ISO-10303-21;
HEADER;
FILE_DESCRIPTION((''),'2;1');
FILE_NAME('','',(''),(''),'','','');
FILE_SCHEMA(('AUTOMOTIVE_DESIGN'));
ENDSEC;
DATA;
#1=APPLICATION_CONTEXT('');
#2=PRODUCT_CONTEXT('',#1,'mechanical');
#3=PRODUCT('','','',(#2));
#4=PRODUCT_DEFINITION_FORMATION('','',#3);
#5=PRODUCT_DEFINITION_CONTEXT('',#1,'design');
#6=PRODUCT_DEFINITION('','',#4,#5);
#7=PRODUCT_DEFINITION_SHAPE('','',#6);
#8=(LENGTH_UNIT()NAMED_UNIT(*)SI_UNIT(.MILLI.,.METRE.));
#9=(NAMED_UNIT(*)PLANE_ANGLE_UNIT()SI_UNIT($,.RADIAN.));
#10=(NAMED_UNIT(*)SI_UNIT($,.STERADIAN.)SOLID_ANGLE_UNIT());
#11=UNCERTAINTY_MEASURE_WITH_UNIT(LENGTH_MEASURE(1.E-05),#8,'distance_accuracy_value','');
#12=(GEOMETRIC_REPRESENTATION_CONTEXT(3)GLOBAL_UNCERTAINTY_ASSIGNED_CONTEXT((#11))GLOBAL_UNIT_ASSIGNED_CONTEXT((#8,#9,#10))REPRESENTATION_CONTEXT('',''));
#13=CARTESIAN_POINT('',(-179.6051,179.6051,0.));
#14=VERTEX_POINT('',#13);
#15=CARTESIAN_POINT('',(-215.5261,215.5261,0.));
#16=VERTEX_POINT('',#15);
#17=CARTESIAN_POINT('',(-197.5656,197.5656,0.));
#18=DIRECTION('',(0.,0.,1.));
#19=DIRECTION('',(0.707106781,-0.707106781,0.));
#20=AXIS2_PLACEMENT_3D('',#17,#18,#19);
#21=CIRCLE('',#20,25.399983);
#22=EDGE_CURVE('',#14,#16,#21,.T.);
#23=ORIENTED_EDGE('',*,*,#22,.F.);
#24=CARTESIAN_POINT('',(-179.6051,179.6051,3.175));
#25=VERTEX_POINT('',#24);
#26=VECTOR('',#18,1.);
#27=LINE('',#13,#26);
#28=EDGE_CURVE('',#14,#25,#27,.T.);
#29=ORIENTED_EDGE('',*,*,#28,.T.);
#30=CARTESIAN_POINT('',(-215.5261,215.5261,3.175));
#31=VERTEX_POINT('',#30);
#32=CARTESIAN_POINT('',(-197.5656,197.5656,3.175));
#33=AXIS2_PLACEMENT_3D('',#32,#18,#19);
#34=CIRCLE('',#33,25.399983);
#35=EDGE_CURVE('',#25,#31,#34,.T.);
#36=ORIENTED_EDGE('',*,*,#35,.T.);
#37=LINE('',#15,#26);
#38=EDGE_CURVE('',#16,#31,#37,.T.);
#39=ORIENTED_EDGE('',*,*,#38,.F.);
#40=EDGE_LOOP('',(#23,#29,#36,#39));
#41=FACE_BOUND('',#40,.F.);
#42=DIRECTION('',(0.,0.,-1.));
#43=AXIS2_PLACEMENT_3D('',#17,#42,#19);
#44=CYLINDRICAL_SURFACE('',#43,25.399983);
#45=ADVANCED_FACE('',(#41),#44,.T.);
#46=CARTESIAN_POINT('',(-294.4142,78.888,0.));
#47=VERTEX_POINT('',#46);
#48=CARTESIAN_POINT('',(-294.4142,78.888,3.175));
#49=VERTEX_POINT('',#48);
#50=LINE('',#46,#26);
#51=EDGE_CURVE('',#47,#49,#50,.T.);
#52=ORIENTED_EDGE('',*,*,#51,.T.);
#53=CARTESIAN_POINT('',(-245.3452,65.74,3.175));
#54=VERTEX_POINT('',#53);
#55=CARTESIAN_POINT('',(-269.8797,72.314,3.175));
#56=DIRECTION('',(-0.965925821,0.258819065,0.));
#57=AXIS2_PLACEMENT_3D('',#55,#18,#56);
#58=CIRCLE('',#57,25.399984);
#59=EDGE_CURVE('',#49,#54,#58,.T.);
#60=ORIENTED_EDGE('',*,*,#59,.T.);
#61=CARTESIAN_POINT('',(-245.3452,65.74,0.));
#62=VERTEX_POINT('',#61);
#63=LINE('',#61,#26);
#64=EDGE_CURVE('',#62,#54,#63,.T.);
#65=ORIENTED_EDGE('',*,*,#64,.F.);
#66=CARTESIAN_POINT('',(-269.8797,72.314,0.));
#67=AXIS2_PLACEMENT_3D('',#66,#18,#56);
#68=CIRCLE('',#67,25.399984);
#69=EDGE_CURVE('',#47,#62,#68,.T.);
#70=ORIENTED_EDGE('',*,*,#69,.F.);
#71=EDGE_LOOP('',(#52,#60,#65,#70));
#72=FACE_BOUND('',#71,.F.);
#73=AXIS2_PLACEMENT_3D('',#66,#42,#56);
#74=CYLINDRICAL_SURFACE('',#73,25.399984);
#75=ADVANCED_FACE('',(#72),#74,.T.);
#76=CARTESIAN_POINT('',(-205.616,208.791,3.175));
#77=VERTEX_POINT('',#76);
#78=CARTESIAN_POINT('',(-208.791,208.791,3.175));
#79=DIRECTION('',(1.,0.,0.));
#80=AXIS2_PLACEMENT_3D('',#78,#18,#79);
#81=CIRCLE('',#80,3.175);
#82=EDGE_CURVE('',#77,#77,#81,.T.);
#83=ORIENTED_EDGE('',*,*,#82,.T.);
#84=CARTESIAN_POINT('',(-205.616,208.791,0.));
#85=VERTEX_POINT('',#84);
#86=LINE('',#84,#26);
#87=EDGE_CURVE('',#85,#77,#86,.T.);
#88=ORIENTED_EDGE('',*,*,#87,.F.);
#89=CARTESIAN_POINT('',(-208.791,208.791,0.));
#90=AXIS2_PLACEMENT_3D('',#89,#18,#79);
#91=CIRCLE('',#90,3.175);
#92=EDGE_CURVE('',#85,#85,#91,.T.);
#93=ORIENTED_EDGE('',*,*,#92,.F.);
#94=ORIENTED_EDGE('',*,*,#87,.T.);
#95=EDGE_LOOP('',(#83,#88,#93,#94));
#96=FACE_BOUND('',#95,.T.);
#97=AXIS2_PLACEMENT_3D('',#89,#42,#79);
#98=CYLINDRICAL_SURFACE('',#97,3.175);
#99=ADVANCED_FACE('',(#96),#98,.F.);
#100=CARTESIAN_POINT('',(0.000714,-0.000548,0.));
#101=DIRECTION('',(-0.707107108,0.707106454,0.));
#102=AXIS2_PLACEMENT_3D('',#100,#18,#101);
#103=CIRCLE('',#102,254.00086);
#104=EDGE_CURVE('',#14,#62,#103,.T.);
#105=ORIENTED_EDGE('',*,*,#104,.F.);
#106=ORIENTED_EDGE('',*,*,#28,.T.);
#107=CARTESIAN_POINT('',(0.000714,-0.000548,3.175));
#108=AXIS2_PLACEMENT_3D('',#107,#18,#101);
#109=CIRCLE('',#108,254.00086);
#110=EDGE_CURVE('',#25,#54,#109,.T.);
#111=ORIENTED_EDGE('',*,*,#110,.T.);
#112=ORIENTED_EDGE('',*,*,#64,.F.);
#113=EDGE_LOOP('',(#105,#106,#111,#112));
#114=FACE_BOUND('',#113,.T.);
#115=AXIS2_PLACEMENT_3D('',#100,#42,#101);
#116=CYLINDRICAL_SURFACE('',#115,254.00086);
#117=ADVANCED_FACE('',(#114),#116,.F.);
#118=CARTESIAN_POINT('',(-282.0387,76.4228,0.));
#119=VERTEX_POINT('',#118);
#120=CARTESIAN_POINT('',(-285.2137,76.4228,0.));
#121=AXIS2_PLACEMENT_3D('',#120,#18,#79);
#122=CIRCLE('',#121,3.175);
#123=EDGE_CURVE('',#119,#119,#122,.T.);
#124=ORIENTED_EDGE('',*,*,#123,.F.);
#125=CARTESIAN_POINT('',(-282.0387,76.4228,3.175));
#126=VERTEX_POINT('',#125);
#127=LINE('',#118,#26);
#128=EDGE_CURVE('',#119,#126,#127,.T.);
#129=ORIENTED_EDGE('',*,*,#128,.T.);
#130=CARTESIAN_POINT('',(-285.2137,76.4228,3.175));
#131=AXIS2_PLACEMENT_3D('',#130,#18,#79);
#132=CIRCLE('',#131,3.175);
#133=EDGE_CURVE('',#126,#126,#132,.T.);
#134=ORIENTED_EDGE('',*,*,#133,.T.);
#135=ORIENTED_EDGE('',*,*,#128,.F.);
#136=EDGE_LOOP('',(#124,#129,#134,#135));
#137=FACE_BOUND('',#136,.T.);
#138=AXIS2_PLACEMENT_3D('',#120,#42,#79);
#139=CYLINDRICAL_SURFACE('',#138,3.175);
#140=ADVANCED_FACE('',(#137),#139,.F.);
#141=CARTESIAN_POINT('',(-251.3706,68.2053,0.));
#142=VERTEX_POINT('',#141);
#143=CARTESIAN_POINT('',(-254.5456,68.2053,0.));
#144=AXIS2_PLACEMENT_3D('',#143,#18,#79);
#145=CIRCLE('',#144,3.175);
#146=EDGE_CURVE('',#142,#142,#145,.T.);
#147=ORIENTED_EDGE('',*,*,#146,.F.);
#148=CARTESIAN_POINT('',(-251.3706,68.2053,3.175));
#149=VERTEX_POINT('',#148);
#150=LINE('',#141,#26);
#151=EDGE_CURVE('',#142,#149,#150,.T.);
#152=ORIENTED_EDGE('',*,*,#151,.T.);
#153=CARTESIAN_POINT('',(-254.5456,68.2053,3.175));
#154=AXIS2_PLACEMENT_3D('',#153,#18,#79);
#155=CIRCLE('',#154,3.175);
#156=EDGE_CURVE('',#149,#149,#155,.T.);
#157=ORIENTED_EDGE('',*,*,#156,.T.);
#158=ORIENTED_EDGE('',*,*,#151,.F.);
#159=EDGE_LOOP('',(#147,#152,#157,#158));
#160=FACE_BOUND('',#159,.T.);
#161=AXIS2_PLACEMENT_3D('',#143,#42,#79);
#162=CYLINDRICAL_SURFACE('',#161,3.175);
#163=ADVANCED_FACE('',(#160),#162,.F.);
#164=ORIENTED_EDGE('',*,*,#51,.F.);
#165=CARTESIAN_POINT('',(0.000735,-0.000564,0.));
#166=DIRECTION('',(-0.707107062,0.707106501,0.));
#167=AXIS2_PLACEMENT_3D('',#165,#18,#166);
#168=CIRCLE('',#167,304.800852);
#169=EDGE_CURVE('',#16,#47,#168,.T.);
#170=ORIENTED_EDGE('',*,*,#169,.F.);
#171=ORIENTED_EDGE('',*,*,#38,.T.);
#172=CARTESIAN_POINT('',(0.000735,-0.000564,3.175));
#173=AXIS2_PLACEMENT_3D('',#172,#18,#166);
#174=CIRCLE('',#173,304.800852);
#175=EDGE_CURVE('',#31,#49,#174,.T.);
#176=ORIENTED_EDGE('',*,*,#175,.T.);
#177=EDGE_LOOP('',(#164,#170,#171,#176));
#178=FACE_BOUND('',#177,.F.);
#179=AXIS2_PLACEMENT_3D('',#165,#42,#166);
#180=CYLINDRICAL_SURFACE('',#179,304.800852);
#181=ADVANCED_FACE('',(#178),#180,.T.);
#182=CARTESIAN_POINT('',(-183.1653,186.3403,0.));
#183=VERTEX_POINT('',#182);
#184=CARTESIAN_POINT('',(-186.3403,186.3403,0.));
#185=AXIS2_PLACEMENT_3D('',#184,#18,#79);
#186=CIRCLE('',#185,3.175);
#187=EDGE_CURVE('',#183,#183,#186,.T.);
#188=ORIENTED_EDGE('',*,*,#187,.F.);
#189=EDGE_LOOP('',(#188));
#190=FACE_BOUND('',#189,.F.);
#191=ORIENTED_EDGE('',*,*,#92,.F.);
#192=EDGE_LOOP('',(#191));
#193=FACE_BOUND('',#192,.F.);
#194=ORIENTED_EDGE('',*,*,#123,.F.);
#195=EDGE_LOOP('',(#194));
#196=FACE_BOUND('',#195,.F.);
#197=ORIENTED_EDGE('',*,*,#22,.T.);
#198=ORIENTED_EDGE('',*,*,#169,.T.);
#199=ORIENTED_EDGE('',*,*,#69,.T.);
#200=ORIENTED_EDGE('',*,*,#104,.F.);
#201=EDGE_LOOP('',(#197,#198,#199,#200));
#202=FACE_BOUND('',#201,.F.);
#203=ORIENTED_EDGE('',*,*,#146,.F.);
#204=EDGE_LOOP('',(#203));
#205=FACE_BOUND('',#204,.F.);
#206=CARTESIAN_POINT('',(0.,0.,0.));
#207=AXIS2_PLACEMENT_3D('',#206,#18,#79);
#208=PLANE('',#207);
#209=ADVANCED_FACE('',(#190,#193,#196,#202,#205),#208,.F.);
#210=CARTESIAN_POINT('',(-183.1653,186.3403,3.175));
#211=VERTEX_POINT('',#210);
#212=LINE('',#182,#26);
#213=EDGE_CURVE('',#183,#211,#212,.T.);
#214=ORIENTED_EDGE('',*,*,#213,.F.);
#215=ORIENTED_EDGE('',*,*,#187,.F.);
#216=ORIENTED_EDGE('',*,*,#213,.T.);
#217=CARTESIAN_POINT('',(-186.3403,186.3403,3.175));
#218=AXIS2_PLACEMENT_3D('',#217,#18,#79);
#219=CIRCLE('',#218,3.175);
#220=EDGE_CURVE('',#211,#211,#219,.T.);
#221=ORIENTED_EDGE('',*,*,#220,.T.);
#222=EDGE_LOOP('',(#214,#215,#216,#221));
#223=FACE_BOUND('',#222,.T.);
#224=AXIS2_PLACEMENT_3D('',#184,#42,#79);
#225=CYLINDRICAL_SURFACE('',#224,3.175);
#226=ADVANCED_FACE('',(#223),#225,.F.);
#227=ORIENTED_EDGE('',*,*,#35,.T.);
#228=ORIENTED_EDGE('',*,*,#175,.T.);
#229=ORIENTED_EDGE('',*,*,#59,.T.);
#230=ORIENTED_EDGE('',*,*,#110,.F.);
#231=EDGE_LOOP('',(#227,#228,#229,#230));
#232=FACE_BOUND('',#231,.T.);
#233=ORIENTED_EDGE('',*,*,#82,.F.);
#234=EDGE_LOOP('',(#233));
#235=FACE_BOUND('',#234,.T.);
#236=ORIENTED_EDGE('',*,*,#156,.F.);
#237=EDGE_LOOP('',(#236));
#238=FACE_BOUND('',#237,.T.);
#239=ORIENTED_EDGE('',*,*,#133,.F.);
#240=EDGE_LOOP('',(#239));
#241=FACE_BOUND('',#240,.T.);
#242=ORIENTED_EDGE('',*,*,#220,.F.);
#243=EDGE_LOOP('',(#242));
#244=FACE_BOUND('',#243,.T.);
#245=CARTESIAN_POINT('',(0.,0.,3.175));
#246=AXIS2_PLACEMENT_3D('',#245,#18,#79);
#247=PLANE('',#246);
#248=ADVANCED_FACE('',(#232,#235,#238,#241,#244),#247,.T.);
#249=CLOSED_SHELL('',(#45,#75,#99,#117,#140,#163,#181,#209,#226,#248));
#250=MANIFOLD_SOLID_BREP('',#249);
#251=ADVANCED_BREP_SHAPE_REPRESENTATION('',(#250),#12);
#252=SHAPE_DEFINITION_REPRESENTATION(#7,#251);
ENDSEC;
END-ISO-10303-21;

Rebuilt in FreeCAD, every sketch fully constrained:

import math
import FreeCAD as App
import Part
import Sketcher
from FreeCAD import Vector
Q = App.Units.Quantity

doc = App.newDocument("Part")
body = doc.addObject("PartDesign::Body", "Body")

# Sketch on XY plane
sketch1 = body.newObject("Sketcher::SketchObject", "Sketch")
sketch1.AttachmentSupport = (doc.getObject("XY_Plane"), [""])
sketch1.MapMode = "FlatFace"
sketch1.addGeometry(Part.ArcOfCircle(Part.Circle(Vector(-197.6, 197.6, 0), Vector(0, 0, 1), 25.4), math.radians(-45), math.radians(135)), False)
sketch1.addGeometry(Part.ArcOfCircle(Part.Circle(Vector(0, 0, 0), Vector(0, 0, 1), 304.8), math.radians(135), math.radians(165)), False)
sketch1.addGeometry(Part.ArcOfCircle(Part.Circle(Vector(-269.9, 72.3, 0), Vector(0, 0, 1), 25.4), math.radians(165), math.radians(345)), False)
sketch1.addGeometry(Part.ArcOfCircle(Part.Circle(Vector(0, 0, 0), Vector(0, 0, 1), 254), math.radians(135), math.radians(165)), False)
sketch1.addGeometry(Part.Circle(Vector(-285.2, 76.4, 0), Vector(0, 0, 1), 3.2), False)
sketch1.addGeometry(Part.Circle(Vector(-254.5, 68.2, 0), Vector(0, 0, 1), 3.2), False)
sketch1.addGeometry(Part.Circle(Vector(-208.8, 208.8, 0), Vector(0, 0, 1), 3.2), False)
sketch1.addGeometry(Part.Circle(Vector(-186.3, 186.3, 0), Vector(0, 0, 1), 3.2), False)
sketch1.addConstraint(Sketcher.Constraint("Tangent", 0, 2, 1, 1))
sketch1.addConstraint(Sketcher.Constraint("Tangent", 1, 2, 2, 1))
sketch1.addConstraint(Sketcher.Constraint("Tangent", 2, 2, 3, 2))
sketch1.addConstraint(Sketcher.Constraint("Tangent", 3, 1, 0, 1))
sketch1.addConstraint(Sketcher.Constraint("Coincident", 1, 3, -1, 1))
sketch1.addConstraint(Sketcher.Constraint("Coincident", 3, 3, -1, 1))
sketch1.addConstraint(Sketcher.Constraint("Equal", 4, 5))
sketch1.addConstraint(Sketcher.Constraint("Equal", 5, 6))
sketch1.addConstraint(Sketcher.Constraint("Equal", 6, 7))
sketch1.addConstraint(Sketcher.Constraint("Radius", 0, Q("1 in")))
sketch1.addConstraint(Sketcher.Constraint("Diameter", 4, Q("0.25 in")))
sketch1.addConstraint(Sketcher.Constraint("Radius", 1, Q("12 in")))
sketch1.addConstraint(Sketcher.Constraint("DistanceY", -1, 1, 2, 3, Q("2.847 in")))
sketch1.addConstraint(Sketcher.Constraint("DistanceX", 2, 3, 0, 3, Q("2.847 in")))
sketch1.addConstraint(Sketcher.Constraint("DistanceX", 4, 3, 2, 3, Q("0.6037 in")))
sketch1.addConstraint(Sketcher.Constraint("DistanceY", 4, 3, 0, 3, Q("4.7694 in")))
sketch1.addConstraint(Sketcher.Constraint("DistanceX", 2, 3, 5, 3, Q("0.6037 in")))
sketch1.addConstraint(Sketcher.Constraint("DistanceY", 2, 3, 6, 3, Q("5.3731 in")))
sketch1.addConstraint(Sketcher.Constraint("DistanceY", 1, 2, 7, 3, Q("4.2304 in")))
sketch1.addConstraint(Sketcher.Constraint("DistanceY", -1, 1, 5, 3, Q("68.2053 mm")))
sketch1.addConstraint(Sketcher.Constraint("DistanceX", 6, 3, -1, 1, Q("208.791 mm")))
sketch1.addConstraint(Sketcher.Constraint("DistanceX", 7, 3, -1, 1, Q("186.3403 mm")))
pad1 = body.newObject("PartDesign::Pad", "Pad")
pad1.Profile = sketch1
pad1.Length = Q("0.125 in")

doc.recompute()
